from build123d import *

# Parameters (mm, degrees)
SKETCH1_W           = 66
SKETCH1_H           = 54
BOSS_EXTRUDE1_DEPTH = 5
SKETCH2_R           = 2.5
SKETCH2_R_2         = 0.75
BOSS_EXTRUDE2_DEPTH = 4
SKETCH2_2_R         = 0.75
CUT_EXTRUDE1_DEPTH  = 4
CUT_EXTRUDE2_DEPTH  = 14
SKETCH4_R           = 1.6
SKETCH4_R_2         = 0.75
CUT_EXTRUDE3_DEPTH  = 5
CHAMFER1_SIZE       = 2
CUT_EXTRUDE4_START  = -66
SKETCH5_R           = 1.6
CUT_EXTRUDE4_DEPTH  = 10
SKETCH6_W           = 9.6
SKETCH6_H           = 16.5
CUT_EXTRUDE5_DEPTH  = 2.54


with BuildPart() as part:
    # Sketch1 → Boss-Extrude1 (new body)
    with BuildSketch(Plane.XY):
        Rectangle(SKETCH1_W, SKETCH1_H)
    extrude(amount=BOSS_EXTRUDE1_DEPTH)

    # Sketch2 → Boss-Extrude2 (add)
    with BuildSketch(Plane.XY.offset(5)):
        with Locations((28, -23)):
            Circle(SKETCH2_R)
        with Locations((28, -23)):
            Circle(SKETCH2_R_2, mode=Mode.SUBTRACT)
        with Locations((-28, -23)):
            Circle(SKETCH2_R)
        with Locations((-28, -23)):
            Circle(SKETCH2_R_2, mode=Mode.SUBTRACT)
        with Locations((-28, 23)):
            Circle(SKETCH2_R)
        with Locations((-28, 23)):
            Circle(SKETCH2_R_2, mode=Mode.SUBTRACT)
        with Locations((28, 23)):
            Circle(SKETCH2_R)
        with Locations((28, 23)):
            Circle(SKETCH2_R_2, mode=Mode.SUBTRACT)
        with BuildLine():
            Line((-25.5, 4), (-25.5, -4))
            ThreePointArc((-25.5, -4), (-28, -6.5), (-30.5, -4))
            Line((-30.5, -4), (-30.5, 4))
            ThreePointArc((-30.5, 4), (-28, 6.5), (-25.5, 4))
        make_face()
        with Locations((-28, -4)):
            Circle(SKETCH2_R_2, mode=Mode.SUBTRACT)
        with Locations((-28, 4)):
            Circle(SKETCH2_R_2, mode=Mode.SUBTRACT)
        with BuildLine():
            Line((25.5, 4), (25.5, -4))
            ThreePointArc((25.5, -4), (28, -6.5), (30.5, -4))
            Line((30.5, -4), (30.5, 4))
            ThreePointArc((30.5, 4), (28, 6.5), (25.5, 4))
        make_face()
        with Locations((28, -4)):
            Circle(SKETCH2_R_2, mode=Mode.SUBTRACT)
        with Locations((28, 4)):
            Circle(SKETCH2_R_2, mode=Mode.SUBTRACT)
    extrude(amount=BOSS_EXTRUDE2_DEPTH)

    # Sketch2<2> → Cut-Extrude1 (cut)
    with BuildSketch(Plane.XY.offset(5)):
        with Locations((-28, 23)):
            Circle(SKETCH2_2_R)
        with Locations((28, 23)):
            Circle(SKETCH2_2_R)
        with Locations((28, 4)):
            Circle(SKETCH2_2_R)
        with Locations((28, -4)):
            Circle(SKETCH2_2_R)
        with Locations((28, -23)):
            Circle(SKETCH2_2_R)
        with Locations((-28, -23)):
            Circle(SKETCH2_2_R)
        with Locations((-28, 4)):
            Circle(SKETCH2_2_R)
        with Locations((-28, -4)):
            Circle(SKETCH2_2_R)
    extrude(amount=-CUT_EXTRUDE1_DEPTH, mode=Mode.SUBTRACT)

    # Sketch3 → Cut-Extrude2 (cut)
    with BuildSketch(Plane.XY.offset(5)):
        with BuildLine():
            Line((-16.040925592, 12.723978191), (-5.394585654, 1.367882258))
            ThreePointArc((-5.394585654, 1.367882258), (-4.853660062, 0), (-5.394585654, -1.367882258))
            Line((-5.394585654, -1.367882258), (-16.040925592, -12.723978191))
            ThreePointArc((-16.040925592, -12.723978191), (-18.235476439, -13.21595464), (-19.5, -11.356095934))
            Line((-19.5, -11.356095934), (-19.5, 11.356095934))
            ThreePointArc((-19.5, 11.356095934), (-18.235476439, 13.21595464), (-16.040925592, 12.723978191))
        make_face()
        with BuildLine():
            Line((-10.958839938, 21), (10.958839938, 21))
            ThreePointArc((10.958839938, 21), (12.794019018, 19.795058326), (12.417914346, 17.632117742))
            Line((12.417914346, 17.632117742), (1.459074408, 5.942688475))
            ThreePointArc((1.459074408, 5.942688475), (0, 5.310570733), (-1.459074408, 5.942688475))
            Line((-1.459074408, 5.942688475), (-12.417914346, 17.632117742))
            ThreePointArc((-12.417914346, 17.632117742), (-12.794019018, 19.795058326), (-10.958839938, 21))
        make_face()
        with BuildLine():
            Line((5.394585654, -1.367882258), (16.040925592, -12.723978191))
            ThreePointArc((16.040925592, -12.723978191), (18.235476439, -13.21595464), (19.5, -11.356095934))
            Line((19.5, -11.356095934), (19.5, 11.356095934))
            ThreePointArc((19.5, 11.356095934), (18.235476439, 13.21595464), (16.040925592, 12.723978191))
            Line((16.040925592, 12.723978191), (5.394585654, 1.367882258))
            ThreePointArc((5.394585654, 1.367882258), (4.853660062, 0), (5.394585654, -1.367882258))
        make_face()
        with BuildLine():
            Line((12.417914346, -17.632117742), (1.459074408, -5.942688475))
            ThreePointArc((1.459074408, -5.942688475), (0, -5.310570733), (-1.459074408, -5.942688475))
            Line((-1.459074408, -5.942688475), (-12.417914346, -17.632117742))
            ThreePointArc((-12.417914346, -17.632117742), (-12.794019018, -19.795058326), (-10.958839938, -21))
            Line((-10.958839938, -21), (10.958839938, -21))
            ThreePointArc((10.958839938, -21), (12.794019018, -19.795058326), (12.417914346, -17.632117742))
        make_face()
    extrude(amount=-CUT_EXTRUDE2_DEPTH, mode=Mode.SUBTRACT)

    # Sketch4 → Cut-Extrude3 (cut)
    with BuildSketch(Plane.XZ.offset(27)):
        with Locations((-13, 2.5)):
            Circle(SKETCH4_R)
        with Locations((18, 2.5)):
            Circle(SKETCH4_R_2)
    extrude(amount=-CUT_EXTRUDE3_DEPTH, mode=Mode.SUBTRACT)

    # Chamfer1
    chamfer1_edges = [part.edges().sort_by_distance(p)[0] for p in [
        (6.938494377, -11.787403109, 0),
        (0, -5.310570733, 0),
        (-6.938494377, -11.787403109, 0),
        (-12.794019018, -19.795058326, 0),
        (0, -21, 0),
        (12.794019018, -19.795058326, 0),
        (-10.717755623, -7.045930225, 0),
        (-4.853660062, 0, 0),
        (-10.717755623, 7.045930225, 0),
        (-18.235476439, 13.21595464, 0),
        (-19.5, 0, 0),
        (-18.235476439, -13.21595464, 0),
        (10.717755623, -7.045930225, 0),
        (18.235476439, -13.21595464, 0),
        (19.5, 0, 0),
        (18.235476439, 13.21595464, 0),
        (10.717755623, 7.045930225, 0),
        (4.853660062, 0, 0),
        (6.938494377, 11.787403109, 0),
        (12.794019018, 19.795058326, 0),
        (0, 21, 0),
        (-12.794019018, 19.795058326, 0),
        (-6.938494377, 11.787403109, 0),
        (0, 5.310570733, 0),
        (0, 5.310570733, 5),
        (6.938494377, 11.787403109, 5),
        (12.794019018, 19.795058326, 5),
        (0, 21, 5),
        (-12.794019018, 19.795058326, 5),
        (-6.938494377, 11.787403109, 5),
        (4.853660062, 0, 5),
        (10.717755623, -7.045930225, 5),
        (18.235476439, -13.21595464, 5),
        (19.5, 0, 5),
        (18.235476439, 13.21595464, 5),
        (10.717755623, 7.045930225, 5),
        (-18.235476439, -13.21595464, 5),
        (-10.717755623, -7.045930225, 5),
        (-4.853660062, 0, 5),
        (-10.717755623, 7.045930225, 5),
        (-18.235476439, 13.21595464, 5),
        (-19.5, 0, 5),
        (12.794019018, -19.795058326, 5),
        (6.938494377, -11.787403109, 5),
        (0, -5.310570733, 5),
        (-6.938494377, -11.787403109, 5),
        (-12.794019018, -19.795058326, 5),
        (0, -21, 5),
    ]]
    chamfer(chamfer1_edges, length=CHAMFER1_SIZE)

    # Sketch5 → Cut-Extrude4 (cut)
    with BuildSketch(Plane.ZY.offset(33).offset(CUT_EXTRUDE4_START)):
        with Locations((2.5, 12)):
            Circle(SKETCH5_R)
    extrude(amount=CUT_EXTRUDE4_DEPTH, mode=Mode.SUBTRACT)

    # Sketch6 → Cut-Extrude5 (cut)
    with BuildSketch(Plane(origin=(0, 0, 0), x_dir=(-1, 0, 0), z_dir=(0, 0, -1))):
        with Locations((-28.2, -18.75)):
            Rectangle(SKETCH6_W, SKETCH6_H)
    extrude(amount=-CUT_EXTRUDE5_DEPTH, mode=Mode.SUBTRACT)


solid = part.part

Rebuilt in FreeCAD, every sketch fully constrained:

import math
import FreeCAD as App
import Part
import Sketcher


def edges_at(feature, points):
    """Names of the edges that pass closest to the given points."""
    edges = feature.Shape.Edges
    near = lambda p: min(range(len(edges)), key=lambda i: edges[i].distToShape(Part.Vertex(*p))[0])
    return sorted({f"Edge{near(p) + 1}" for p in points})


def add_polygon(sketch, points):
    """Adds a closed chain of lines whose ends are joined by coincident constraints."""
    first, n = sketch.GeometryCount, len(points)
    for a, b in zip(points, points[1:] + points[:1]):
        sketch.addGeometry(Part.LineSegment(App.Vector(*a, 0), App.Vector(*b, 0)), False)
    for i in range(n):
        sketch.addConstraint(Sketcher.Constraint("Coincident", first + i, 2, first + (i + 1) % n, 1))

doc = App.newDocument("Part")
body = doc.addObject("PartDesign::Body", "Body")

sketch1 = doc.addObject("Sketcher::SketchObject", "Sketch")
body.addObject(sketch1)
sketch1.AttachmentSupport = (doc.XY_Plane, [""])
sketch1.MapMode = "FlatFace"
add_polygon(sketch1, [(-33, 27), (-33, -27), (33, -27), (33, 27)])
sketch1.addConstraint([
    Sketcher.Constraint("Vertical", 0),
    Sketcher.Constraint("Horizontal", 1),
    Sketcher.Constraint("Vertical", 2),
    Sketcher.Constraint("Horizontal", 3),
    Sketcher.Constraint("Symmetric", 0, 2, 2, 2, -1, 1),
    Sketcher.Constraint("DistanceX", 1, 1, 1, 2, 66.0),
    Sketcher.Constraint("DistanceY", 0, 2, 0, 1, 54.0),
])
pad1 = doc.addObject("PartDesign::Pad", "Pad")
body.addObject(pad1)
pad1.Profile = sketch1
pad1.Length = 5

sketch2 = doc.addObject("Sketcher::SketchObject", "Sketch001")
body.addObject(sketch2)
sketch2.AttachmentSupport = (doc.XY_Plane, [""])
sketch2.MapMode = "FlatFace"
sketch2.AttachmentOffset = App.Placement(App.Vector(0, 0, 5), App.Rotation())
sketch2.addGeometry([
    Part.Circle(App.Vector(28, -23, 0), App.Vector(0, 0, 1), 2.5),
    Part.Circle(App.Vector(28, -23, 0), App.Vector(0, 0, 1), 0.75),
    Part.Circle(App.Vector(-28, -23, 0), App.Vector(0, 0, 1), 2.5),
    Part.Circle(App.Vector(-28, -23, 0), App.Vector(0, 0, 1), 0.75),
    Part.Circle(App.Vector(-28, 23, 0), App.Vector(0, 0, 1), 2.5),
    Part.Circle(App.Vector(-28, 23, 0), App.Vector(0, 0, 1), 0.75),
    Part.Circle(App.Vector(28, 23, 0), App.Vector(0, 0, 1), 2.5),
    Part.Circle(App.Vector(28, 23, 0), App.Vector(0, 0, 1), 0.75),
    Part.LineSegment(App.Vector(-25.5, -4, 0), App.Vector(-25.5, 4, 0)),
    Part.ArcOfCircle(Part.Circle(App.Vector(-28, 4, 0), App.Vector(0, 0, 1), 2.5), math.radians(0), math.radians(180)),
    Part.LineSegment(App.Vector(-30.5, 4, 0), App.Vector(-30.5, -4, 0)),
    Part.ArcOfCircle(Part.Circle(App.Vector(-28, -4, 0), App.Vector(0, 0, 1), 2.5), math.radians(180), math.radians(360)),
    Part.Circle(App.Vector(-28, -4, 0), App.Vector(0, 0, 1), 0.75),
    Part.Circle(App.Vector(-28, 4, 0), App.Vector(0, 0, 1), 0.75),
    Part.LineSegment(App.Vector(25.5, 4, 0), App.Vector(25.5, -4, 0)),
    Part.ArcOfCircle(Part.Circle(App.Vector(28, -4, 0), App.Vector(0, 0, 1), 2.5), math.radians(180), math.radians(360)),
    Part.LineSegment(App.Vector(30.5, -4, 0), App.Vector(30.5, 4, 0)),
    Part.ArcOfCircle(Part.Circle(App.Vector(28, 4, 0), App.Vector(0, 0, 1), 2.5), math.radians(0), math.radians(180)),
    Part.Circle(App.Vector(28, -4, 0), App.Vector(0, 0, 1), 0.75),
    Part.Circle(App.Vector(28, 4, 0), App.Vector(0, 0, 1), 0.75),
], False)
sketch2.addConstraint([
    Sketcher.Constraint("Tangent", 8, 2, 9, 1),
    Sketcher.Constraint("Tangent", 9, 2, 10, 1),
    Sketcher.Constraint("Tangent", 10, 2, 11, 1),
    Sketcher.Constraint("Tangent", 11, 2, 8, 1),
    Sketcher.Constraint("Tangent", 14, 2, 15, 1),
    Sketcher.Constraint("Tangent", 15, 2, 16, 1),
    Sketcher.Constraint("Tangent", 16, 2, 17, 1),
    Sketcher.Constraint("Tangent", 17, 2, 14, 1),
    Sketcher.Constraint("Vertical", 8),
    Sketcher.Constraint("Vertical", 10),
    Sketcher.Constraint("Vertical", 14),
    Sketcher.Constraint("Vertical", 16),
    Sketcher.Constraint("Coincident", 1, 3, 0, 3),
    Sketcher.Constraint("Coincident", 3, 3, 2, 3),
    Sketcher.Constraint("Coincident", 5, 3, 4, 3),
    Sketcher.Constraint("Coincident", 7, 3, 6, 3),
    Sketcher.Constraint("Coincident", 12, 3, 11, 3),
    Sketcher.Constraint("Coincident", 13, 3, 9, 3),
    Sketcher.Constraint("Coincident", 18, 3, 15, 3),
    Sketcher.Constraint("Coincident", 19, 3, 17, 3),
    Sketcher.Constraint("Equal", 0, 2),
    Sketcher.Constraint("Equal", 1, 3),
    Sketcher.Constraint("Equal", 2, 4),
    Sketcher.Constraint("Equal", 3, 5),
    Sketcher.Constraint("Equal", 4, 6),
    Sketcher.Constraint("Equal", 5, 7),
    Sketcher.Constraint("Equal", 6, 9),
    Sketcher.Constraint("Equal", 7, 12),
    Sketcher.Constraint("Equal", 12, 13),
    Sketcher.Constraint("Equal", 11, 15),
    Sketcher.Constraint("Equal", 13, 18),
    Sketcher.Constraint("Equal", 18, 19),
    Sketcher.Constraint("Symmetric", 0, 3, 4, 3, -1, 1),
    Sketcher.Constraint("Symmetric", 2, 3, 6, 3, -1, 1),
    Sketcher.Constraint("Symmetric", 9, 3, 15, 3, -1, 1),
    Sketcher.Constraint("Symmetric", 0, 3, 2, 3, -2),
    Sketcher.Constraint("Horizontal", 12, 3, 15, 3),
    Sketcher.Constraint("Horizontal", 13, 3, 17, 3),
    Sketcher.Constraint("Vertical", 5, 3, 9, 3),
    Sketcher.Constraint("Diameter", 0, 5.0),
    Sketcher.Constraint("Diameter", 1, 1.5),
    Sketcher.Constraint("DistanceY", 8, 1, 8, 2, 8.0),
    Sketcher.Constraint("DistanceX", -1, 1, 0, 3, 28.0),
    Sketcher.Constraint("DistanceY", 0, 3, -1, 1, 23.0),
])
pad2 = doc.addObject("PartDesign::Pad", "Pad001")
body.addObject(pad2)
pad2.Profile = sketch2
pad2.Length = 4

sketch3 = doc.addObject("Sketcher::SketchObject", "Sketch002")
body.addObject(sketch3)
sketch3.AttachmentSupport = (doc.XY_Plane, [""])
sketch3.MapMode = "FlatFace"
sketch3.AttachmentOffset = App.Placement(App.Vector(0, 0, 5), App.Rotation())
sketch3.addGeometry([
    Part.Circle(App.Vector(-28, 23, 0), App.Vector(0, 0, 1), 0.75),
    Part.Circle(App.Vector(28, 23, 0), App.Vector(0, 0, 1), 0.75),
    Part.Circle(App.Vector(28, 4, 0), App.Vector(0, 0, 1), 0.75),
    Part.Circle(App.Vector(28, -4, 0), App.Vector(0, 0, 1), 0.75),
    Part.Circle(App.Vector(28, -23, 0), App.Vector(0, 0, 1), 0.75),
    Part.Circle(App.Vector(-28, -23, 0), App.Vector(0, 0, 1), 0.75),
    Part.Circle(App.Vector(-28, 4, 0), App.Vector(0, 0, 1), 0.75),
    Part.Circle(App.Vector(-28, -4, 0), App.Vector(0, 0, 1), 0.75),
], False)
sketch3.addConstraint([
    Sketcher.Constraint("Equal", 0, 1),
    Sketcher.Constraint("Equal", 1, 2),
    Sketcher.Constraint("Equal", 2, 3),
    Sketcher.Constraint("Equal", 3, 4),
    Sketcher.Constraint("Equal", 4, 5),
    Sketcher.Constraint("Equal", 5, 6),
    Sketcher.Constraint("Equal", 6, 7),
    Sketcher.Constraint("Symmetric", 0, 3, 4, 3, -1, 1),
    Sketcher.Constraint("Symmetric", 1, 3, 5, 3, -1, 1),
    Sketcher.Constraint("Symmetric", 3, 3, 6, 3, -1, 1),
    Sketcher.Constraint("Symmetric", 2, 3, 7, 3, -1, 1),
    Sketcher.Constraint("Symmetric", 0, 3, 1, 3, -2),
    Sketcher.Constraint("Symmetric", 2, 3, 6, 3, -2),
    Sketcher.Constraint("Vertical", 1, 3, 2, 3),
    Sketcher.Constraint("Diameter", 0, 1.5),
    Sketcher.Constraint("DistanceX", 0, 3, -1, 1, 28.0),
    Sketcher.Constraint("DistanceY", -1, 1, 0, 3, 23.0),
    Sketcher.Constraint("DistanceY", -1, 1, 2, 3, 4.0),
])
pocket1 = doc.addObject("PartDesign::Pocket", "Pocket")
body.addObject(pocket1)
pocket1.Profile = sketch3
pocket1.Length = 4

sketch4 = doc.addObject("Sketcher::SketchObject", "Sketch003")
body.addObject(sketch4)
sketch4.AttachmentSupport = (doc.XY_Plane, [""])
sketch4.MapMode = "FlatFace"
sketch4.AttachmentOffset = App.Placement(App.Vector(0, 0, 5), App.Rotation())
sketch4.addGeometry([
    Part.LineSegment(App.Vector(-5.394586, 1.367882, 0), App.Vector(-16.040926, 12.723978, 0)),
    Part.ArcOfCircle(Part.Circle(App.Vector(-17.5, 11.356096, 0), App.Vector(0, 0, 1), 2), math.radians(43.15239), math.radians(180)),
    Part.LineSegment(App.Vector(-19.5, 11.356096, 0), App.Vector(-19.5, -11.356096, 0)),
    Part.ArcOfCircle(Part.Circle(App.Vector(-17.5, -11.356096, 0), App.Vector(0, 0, 1), 2), math.radians(180), math.radians(316.84761)),
    Part.LineSegment(App.Vector(-16.040926, -12.723978, 0), App.Vector(-5.394586, -1.367882, 0)),
    Part.ArcOfCircle(Part.Circle(App.Vector(-6.85366, 0, 0), App.Vector(0, 0, 1), 2), math.radians(-43.15239), math.radians(43.15239)),
    Part.LineSegment(App.Vector(10.95884, 21, 0), App.Vector(-10.95884, 21, 0)),
    Part.ArcOfCircle(Part.Circle(App.Vector(-10.95884, 19, 0), App.Vector(0, 0, 1), 2), math.radians(90), math.radians(223.15239)),
    Part.LineSegment(App.Vector(-12.417914, 17.632118, 0), App.Vector(-1.459074, 5.942688, 0)),
    Part.ArcOfCircle(Part.Circle(App.Vector(0, 7.310571, 0), App.Vector(0, 0, 1), 2), math.radians(-136.84761), math.radians(-43.15239)),
    Part.LineSegment(App.Vector(1.459074, 5.942688, 0), App.Vector(12.417914, 17.632118, 0)),
    Part.ArcOfCircle(Part.Circle(App.Vector(10.95884, 19, 0), App.Vector(0, 0, 1), 2), math.radians(-43.15239), math.radians(90)),
    Part.LineSegment(App.Vector(5.394586, -1.367882, 0), App.Vector(16.040926, -12.723978, 0)),
    Part.ArcOfCircle(Part.Circle(App.Vector(17.5, -11.356096, 0), App.Vector(0, 0, 1), 2), math.radians(-136.84761), math.radians(0)),
    Part.LineSegment(App.Vector(19.5, -11.356096, 0), App.Vector(19.5, 11.356096, 0)),
    Part.ArcOfCircle(Part.Circle(App.Vector(17.5, 11.356096, 0), App.Vector(0, 0, 1), 2), math.radians(0), math.radians(136.84761)),
    Part.LineSegment(App.Vector(16.040926, 12.723978, 0), App.Vector(5.394586, 1.367882, 0)),
    Part.ArcOfCircle(Part.Circle(App.Vector(6.85366, 0, 0), App.Vector(0, 0, 1), 2), math.radians(136.84761), math.radians(223.15239)),
    Part.LineSegment(App.Vector(12.417914, -17.632118, 0), App.Vector(1.459074, -5.942688, 0)),
    Part.ArcOfCircle(Part.Circle(App.Vector(0, -7.310571, 0), App.Vector(0, 0, 1), 2), math.radians(43.15239), math.radians(136.84761)),
    Part.LineSegment(App.Vector(-1.459074, -5.942688, 0), App.Vector(-12.417914, -17.632118, 0)),
    Part.ArcOfCircle(Part.Circle(App.Vector(-10.95884, -19, 0), App.Vector(0, 0, 1), 2), math.radians(136.84761), math.radians(270)),
    Part.LineSegment(App.Vector(-10.95884, -21, 0), App.Vector(10.95884, -21, 0)),
    Part.ArcOfCircle(Part.Circle(App.Vector(10.95884, -19, 0), App.Vector(0, 0, 1), 2), math.radians(-90), math.radians(43.15239)),
], False)
sketch4.addConstraint([
    Sketcher.Constraint("Tangent", 0, 2, 1, 1),
    Sketcher.Constraint("Tangent", 1, 2, 2, 1),
    Sketcher.Constraint("Tangent", 2, 2, 3, 1),
    Sketcher.Constraint("Tangent", 3, 2, 4, 1),
    Sketcher.Constraint("Tangent", 4, 2, 5, 1),
    Sketcher.Constraint("Tangent", 5, 2, 0, 1),
    Sketcher.Constraint("Tangent", 6, 2, 7, 1),
    Sketcher.Constraint("Tangent", 7, 2, 8, 1),
    Sketcher.Constraint("Tangent", 8, 2, 9, 1),
    Sketcher.Constraint("Tangent", 9, 2, 10, 1),
    Sketcher.Constraint("Tangent", 10, 2, 11, 1),
    Sketcher.Constraint("Tangent", 11, 2, 6, 1),
    Sketcher.Constraint("Tangent", 12, 2, 13, 1),
    Sketcher.Constraint("Tangent", 13, 2, 14, 1),
    Sketcher.Constraint("Tangent", 14, 2, 15, 1),
    Sketcher.Constraint("Tangent", 15, 2, 16, 1),
    Sketcher.Constraint("Tangent", 16, 2, 17, 1),
    Sketcher.Constraint("Tangent", 17, 2, 12, 1),
    Sketcher.Constraint("Tangent", 18, 2, 19, 1),
    Sketcher.Constraint("Tangent", 19, 2, 20, 1),
    Sketcher.Constraint("Tangent", 20, 2, 21, 1),
    Sketcher.Constraint("Tangent", 21, 2, 22, 1),
    Sketcher.Constraint("Tangent", 22, 2, 23, 1),
    Sketcher.Constraint("Tangent", 23, 2, 18, 1),
    Sketcher.Constraint("Vertical", 2),
    Sketcher.Constraint("Horizontal", 6),
    Sketcher.Constraint("Vertical", 14),
    Sketcher.Constraint("Horizontal", 22),
    Sketcher.Constraint("Equal", 1, 3),
    Sketcher.Constraint("Equal", 3, 5),
    Sketcher.Constraint("Equal", 5, 7),
    Sketcher.Constraint("Equal", 7, 9),
    Sketcher.Constraint("Equal", 9, 11),
    Sketcher.Constraint("Equal", 11, 13),
    Sketcher.Constraint("Equal", 13, 15),
    Sketcher.Constraint("Equal", 15, 17),
    Sketcher.Constraint("Equal", 17, 19),
    Sketcher.Constraint("Equal", 19, 21),
    Sketcher.Constraint("Equal", 21, 23),
    Sketcher.Constraint("Symmetric", 1, 3, 13, 3, -1, 1),
    Sketcher.Constraint("Symmetric", 5, 3, 17, 3, -1, 1),
    Sketcher.Constraint("Symmetric", 9, 3, 19, 3, -1, 1),
    Sketcher.Constraint("Symmetric", 11, 3, 21, 3, -1, 1),
    Sketcher.Constraint("Symmetric", 8, 2, 9, 2, -2),
    Sketcher.Constraint("Symmetric", 3, 2, 12, 2, -2),
    Sketcher.Constraint("Parallel", 0, 8),
    Sketcher.Constraint("Parallel", 10, 16),
    Sketcher.Constraint("Parallel", 12, 18),
    Sketcher.Constraint("Radius", 1, 2.0),
    Sketcher.Constraint("DistanceY", -1, 1, 7, 3, 19.0),
    Sketcher.Constraint("DistanceX", 3, 3, 13, 3, 35.0),
    Sketcher.Constraint("DistanceX", 6, 2, 6, 1, 21.91768),
    Sketcher.Constraint("DistanceY", 2, 2, 2, 1, 22.712192),
    Sketcher.Constraint("DistanceX", 5, 3, 11, 3, 17.8125),
])
pocket2 = doc.addObject("PartDesign::Pocket", "Pocket001")
body.addObject(pocket2)
pocket2.Profile = sketch4
pocket2.Length = 14

sketch5 = doc.addObject("Sketcher::SketchObject", "Sketch004")
body.addObject(sketch5)
sketch5.AttachmentSupport = (doc.XZ_Plane, [""])
sketch5.MapMode = "FlatFace"
sketch5.AttachmentOffset = App.Placement(App.Vector(0, 0, 27), App.Rotation())
sketch5.addGeometry([
    Part.Circle(App.Vector(-13, 2.5, 0), App.Vector(0, 0, 1), 1.6),
    Part.Circle(App.Vector(18, 2.5, 0), App.Vector(0, 0, 1), 0.75),
], False)
sketch5.addConstraint([
    Sketcher.Constraint("Horizontal", 0, 3, 1, 3),
    Sketcher.Constraint("Diameter", 0, 3.2),
    Sketcher.Constraint("Diameter", 1, 1.5),
    Sketcher.Constraint("DistanceX", 0, 3, -1, 1, 13.0),
    Sketcher.Constraint("DistanceX", -1, 1, 1, 3, 18.0),
    Sketcher.Constraint("DistanceY", -1, 1, 0, 3, 2.5),
])
pocket3 = doc.addObject("PartDesign::Pocket", "Pocket002")
body.addObject(pocket3)
pocket3.Profile = sketch5
pocket3.Length = 5
doc.recompute()

chamfer = doc.addObject("PartDesign::Chamfer", "Chamfer")
body.addObject(chamfer)
chamfer.Base = (pocket3, edges_at(pocket3, [
    (6.938, -11.787, 0),
    (0, -5.311, 0),
    (-6.938, -11.787, 0),
    (-12.794, -19.795, 0),
    (0, -21, 0),
    (12.794, -19.795, 0),
    (-10.718, -7.046, 0),
    (-4.854, 0, 0),
    (-10.718, 7.046, 0),
    (-18.235, 13.216, 0),
    (-19.5, 0, 0),
    (-18.235, -13.216, 0),
    (10.718, -7.046, 0),
    (18.235, -13.216, 0),
    (19.5, 0, 0),
    (18.235, 13.216, 0),
    (10.718, 7.046, 0),
    (4.854, 0, 0),
    (6.938, 11.787, 0),
    (12.794, 19.795, 0),
    (0, 21, 0),
    (-12.794, 19.795, 0),
    (-6.938, 11.787, 0),
    (0, 5.311, 0),
    (0, 5.311, 5),
    (6.938, 11.787, 5),
    (12.794, 19.795, 5),
    (0, 21, 5),
    (-12.794, 19.795, 5),
    (-6.938, 11.787, 5),
    (4.854, 0, 5),
    (10.718, -7.046, 5),
    (18.235, -13.216, 5),
    (19.5, 0, 5),
    (18.235, 13.216, 5),
    (10.718, 7.046, 5),
    (-18.235, -13.216, 5),
    (-10.718, -7.046, 5),
    (-4.854, 0, 5),
    (-10.718, 7.046, 5),
    (-18.235, 13.216, 5),
    (-19.5, 0, 5),
    (12.794, -19.795, 5),
    (6.938, -11.787, 5),
    (0, -5.311, 5),
    (-6.938, -11.787, 5),
    (-12.794, -19.795, 5),
    (0, -21, 5),
]))
chamfer.Size = 2

sketch6 = doc.addObject("Sketcher::SketchObject", "Sketch005")
body.addObject(sketch6)
sketch6.AttachmentSupport = (doc.YZ_Plane, [""])
sketch6.MapMode = "FlatFace"
sketch6.AttachmentOffset = App.Placement(App.Vector(0, 0, 33), App.Rotation())
sketch6.addGeometry(Part.Circle(App.Vector(12, 2.5, 0), App.Vector(0, 0, 1), 1.6), False)
sketch6.addConstraint([
    Sketcher.Constraint("Diameter", 0, 3.2),
    Sketcher.Constraint("DistanceX", -1, 1, 0, 3, 12.0),
    Sketcher.Constraint("DistanceY", -1, 1, 0, 3, 2.5),
])
pocket4 = doc.addObject("PartDesign::Pocket", "Pocket003")
body.addObject(pocket4)
pocket4.Profile = sketch6
pocket4.Length = 10

sketch7 = doc.addObject("Sketcher::SketchObject", "Sketch006")
body.addObject(sketch7)
sketch7.AttachmentSupport = (doc.XY_Plane, [""])
sketch7.MapMode = "FlatFace"
add_polygon(sketch7, [(33, -10.5), (33, -27), (23.4, -27), (23.4, -10.5)])
sketch7.addConstraint([
    Sketcher.Constraint("Vertical", 0),
    Sketcher.Constraint("Horizontal", 1),
    Sketcher.Constraint("Vertical", 2),
    Sketcher.Constraint("Horizontal", 3),
    Sketcher.Constraint("DistanceX", 1, 2, 1, 1, 9.6),
    Sketcher.Constraint("DistanceY", 0, 2, 0, 1, 16.5),
    Sketcher.Constraint("DistanceX", -1, 1, 0, 2, 33.0),
    Sketcher.Constraint("DistanceY", 0, 2, -1, 1, 27.0),
])
pocket5 = doc.addObject("PartDesign::Pocket", "Pocket004")
body.addObject(pocket5)
pocket5.Profile = sketch7
pocket5.Length = 2.54
pocket5.Reversed = True

doc.recompute()
